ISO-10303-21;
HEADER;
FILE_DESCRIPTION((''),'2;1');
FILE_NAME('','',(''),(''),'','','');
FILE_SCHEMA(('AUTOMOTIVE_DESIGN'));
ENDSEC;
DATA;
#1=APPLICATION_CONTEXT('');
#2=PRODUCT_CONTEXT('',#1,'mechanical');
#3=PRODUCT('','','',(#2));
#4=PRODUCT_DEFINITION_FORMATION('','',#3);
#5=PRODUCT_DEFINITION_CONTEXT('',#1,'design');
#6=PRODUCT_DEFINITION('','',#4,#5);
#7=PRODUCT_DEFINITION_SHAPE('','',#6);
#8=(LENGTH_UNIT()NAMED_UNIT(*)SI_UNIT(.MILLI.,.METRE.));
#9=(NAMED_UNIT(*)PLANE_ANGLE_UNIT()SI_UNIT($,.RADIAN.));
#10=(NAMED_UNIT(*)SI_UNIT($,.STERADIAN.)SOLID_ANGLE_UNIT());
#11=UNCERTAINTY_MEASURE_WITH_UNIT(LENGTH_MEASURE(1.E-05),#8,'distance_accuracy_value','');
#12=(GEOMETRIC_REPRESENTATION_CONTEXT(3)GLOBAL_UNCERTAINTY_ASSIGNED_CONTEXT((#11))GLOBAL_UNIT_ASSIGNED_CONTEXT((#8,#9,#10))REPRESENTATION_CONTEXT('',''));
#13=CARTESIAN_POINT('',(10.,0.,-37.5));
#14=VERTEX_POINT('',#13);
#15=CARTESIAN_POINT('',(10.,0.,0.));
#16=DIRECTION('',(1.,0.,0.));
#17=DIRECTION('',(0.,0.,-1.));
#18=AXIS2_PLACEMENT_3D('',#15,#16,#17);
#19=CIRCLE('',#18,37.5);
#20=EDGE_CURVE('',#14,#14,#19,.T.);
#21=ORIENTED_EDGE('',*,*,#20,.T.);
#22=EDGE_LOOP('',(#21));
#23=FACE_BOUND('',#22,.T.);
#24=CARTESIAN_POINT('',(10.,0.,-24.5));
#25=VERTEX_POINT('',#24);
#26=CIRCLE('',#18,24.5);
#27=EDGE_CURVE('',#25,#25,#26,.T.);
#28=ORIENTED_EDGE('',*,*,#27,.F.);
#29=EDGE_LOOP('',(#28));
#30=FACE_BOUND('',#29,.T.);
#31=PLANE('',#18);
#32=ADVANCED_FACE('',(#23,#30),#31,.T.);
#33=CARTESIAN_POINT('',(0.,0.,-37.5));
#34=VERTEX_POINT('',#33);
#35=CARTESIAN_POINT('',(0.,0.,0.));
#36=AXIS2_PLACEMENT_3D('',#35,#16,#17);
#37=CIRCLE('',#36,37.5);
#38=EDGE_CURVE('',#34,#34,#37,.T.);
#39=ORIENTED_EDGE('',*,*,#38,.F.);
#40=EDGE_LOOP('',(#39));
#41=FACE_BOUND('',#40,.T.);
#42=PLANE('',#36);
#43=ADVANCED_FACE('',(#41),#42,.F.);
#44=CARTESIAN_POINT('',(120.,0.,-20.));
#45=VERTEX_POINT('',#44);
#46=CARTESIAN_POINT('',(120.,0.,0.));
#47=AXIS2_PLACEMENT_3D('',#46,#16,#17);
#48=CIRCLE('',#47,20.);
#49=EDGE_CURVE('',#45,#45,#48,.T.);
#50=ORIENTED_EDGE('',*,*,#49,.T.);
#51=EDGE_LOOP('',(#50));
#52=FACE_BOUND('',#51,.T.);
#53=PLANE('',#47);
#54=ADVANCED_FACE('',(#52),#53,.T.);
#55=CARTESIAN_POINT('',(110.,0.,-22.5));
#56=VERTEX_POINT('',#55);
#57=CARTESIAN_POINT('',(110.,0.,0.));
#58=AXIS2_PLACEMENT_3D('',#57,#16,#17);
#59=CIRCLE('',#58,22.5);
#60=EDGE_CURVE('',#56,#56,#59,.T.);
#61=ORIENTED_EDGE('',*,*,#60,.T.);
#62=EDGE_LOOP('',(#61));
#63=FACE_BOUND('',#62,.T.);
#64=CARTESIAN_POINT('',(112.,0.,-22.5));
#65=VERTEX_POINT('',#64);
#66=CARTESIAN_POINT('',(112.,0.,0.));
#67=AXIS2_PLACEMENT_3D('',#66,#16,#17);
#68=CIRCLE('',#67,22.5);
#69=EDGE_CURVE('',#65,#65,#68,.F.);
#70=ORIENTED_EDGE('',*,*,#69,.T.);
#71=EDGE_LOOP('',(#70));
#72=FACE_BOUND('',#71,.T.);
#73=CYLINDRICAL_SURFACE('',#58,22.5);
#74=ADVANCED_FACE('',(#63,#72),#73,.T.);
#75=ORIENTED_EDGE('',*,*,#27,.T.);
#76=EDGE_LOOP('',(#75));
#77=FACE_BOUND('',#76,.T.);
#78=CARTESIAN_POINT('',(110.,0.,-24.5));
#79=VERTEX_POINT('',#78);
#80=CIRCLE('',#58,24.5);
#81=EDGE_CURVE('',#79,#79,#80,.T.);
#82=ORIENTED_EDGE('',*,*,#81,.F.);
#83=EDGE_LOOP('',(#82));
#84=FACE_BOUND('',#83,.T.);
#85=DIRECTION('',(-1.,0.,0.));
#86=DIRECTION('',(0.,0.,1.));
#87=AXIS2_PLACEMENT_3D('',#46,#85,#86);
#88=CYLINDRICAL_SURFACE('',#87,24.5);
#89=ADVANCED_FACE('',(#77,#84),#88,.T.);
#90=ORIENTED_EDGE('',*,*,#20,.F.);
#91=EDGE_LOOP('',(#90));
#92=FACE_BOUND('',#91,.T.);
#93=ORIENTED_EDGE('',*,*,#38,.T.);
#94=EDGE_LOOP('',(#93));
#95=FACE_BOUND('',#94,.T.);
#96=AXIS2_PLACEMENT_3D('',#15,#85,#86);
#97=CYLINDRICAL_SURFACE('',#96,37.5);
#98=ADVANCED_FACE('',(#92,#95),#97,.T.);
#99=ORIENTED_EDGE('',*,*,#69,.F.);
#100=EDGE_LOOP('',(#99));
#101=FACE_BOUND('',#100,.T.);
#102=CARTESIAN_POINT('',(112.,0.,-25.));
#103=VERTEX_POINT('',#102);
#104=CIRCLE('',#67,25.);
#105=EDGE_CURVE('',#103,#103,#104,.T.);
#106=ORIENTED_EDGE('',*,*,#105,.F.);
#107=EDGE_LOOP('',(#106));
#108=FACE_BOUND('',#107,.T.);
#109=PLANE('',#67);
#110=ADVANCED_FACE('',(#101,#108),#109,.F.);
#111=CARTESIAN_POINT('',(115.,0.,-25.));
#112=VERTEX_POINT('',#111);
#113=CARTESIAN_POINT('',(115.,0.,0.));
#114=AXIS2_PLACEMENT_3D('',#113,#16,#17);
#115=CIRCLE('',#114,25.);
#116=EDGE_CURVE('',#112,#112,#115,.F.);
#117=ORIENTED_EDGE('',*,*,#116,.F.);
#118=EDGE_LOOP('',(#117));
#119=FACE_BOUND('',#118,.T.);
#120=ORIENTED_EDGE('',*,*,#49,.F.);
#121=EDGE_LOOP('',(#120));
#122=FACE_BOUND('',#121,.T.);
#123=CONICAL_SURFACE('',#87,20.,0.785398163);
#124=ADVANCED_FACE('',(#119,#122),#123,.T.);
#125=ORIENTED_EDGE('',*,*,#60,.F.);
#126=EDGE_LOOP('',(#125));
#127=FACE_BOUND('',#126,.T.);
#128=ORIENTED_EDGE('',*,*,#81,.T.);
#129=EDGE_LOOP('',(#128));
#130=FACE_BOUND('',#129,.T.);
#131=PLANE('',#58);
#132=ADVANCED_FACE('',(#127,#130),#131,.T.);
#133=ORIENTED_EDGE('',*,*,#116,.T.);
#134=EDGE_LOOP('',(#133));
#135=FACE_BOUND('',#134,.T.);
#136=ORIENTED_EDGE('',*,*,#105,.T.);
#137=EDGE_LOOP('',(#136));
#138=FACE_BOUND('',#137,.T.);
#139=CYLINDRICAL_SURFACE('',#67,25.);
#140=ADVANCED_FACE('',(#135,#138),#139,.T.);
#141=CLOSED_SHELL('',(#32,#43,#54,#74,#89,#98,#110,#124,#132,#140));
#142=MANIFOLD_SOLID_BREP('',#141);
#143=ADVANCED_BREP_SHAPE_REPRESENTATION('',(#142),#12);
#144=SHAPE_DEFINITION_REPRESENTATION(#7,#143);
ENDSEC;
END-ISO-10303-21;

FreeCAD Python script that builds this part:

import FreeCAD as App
import Part
import Sketcher


def edges_at(feature, points):
    """Names of the edges that pass closest to the given points."""
    edges = feature.Shape.Edges
    near = lambda p: min(range(len(edges)), key=lambda i: edges[i].distToShape(Part.Vertex(*p))[0])
    return sorted({f"Edge{near(p) + 1}" for p in points})

doc = App.newDocument("Part")
params = doc.addObject("Spreadsheet::Sheet", "Params")
for row, (alias, value) in enumerate([
    ("sketch1_diameter", "75 mm"),
    ("pad1_length", "10 mm"),
    ("sketch2_diameter", "49 mm"),
    ("pad2_length", "110 mm"),
    ("sketch3_diameter", "45 mm"),
    ("pocket1_length", "10 mm"),
    ("sketch4_diameter", "50 mm"),
    ("pad3_length", "8 mm"),
    ("chamfer_size", "5 mm"),
], start=1):
    params.set(f"A{row}", alias)
    params.set(f"B{row}", "=" + value)
    params.setAlias(f"B{row}", alias)

body = doc.addObject("PartDesign::Body", "Body")

sketch1 = body.newObject("Sketcher::SketchObject", "Sketch")
sketch1.AttachmentSupport = (doc.getObject("YZ_Plane"), [""])
sketch1.MapMode = "FlatFace"
sketch1.addGeometry(Part.Circle(App.Vector(0, 0, 0), App.Vector(0, 0, 1), 38), False)
sketch1.addConstraint(Sketcher.Constraint("Coincident", 0, 3, -1, 1))
sketch1.addConstraint(Sketcher.Constraint("Diameter", 0, 75.0))
sketch1.setExpression("Constraints[1]", "Params.sketch1_diameter")
pad1 = body.newObject("PartDesign::Pad", "Pad")
pad1.Profile = sketch1
pad1.setExpression("Length", "Params.pad1_length")

sketch2 = body.newObject("Sketcher::SketchObject", "Sketch001")
sketch2.AttachmentSupport = (doc.getObject("YZ_Plane"), [""])
sketch2.MapMode = "FlatFace"
sketch2.AttachmentOffset = App.Placement(App.Vector(0, 0, 10), App.Rotation())
sketch2.addGeometry(Part.Circle(App.Vector(0, 0, 0), App.Vector(0, 0, 1), 24), False)
sketch2.addConstraint(Sketcher.Constraint("Coincident", 0, 3, -1, 1))
sketch2.addConstraint(Sketcher.Constraint("Diameter", 0, 49.0))
sketch2.setExpression("Constraints[1]", "Params.sketch2_diameter")
pad2 = body.newObject("PartDesign::Pad", "Pad001")
pad2.Profile = sketch2
pad2.setExpression("Length", "Params.pad2_length")

sketch3 = body.newObject("Sketcher::SketchObject", "Sketch002")
sketch3.AttachmentSupport = (doc.getObject("YZ_Plane"), [""])
sketch3.MapMode = "FlatFace"
sketch3.AttachmentOffset = App.Placement(App.Vector(0, 0, 120), App.Rotation())
sketch3.addGeometry(Part.LineSegment(App.Vector(55, 55, 0), App.Vector(-55, 55, 0)), False)
sketch3.addGeometry(Part.LineSegment(App.Vector(-55, 55, 0), App.Vector(-55, -55, 0)), False)
sketch3.addGeometry(Part.LineSegment(App.Vector(-55, -55, 0), App.Vector(55, -55, 0)), False)
sketch3.addGeometry(Part.LineSegment(App.Vector(55, -55, 0), App.Vector(55, 55, 0)), False)
sketch3.addGeometry(Part.Circle(App.Vector(0, 0, 0), App.Vector(0, 0, 1), 22), False)
sketch3.addConstraint(Sketcher.Constraint("Coincident", 0, 2, 1, 1))
sketch3.addConstraint(Sketcher.Constraint("Coincident", 1, 2, 2, 1))
sketch3.addConstraint(Sketcher.Constraint("Coincident", 2, 2, 3, 1))
sketch3.addConstraint(Sketcher.Constraint("Coincident", 3, 2, 0, 1))
sketch3.addConstraint(Sketcher.Constraint("Horizontal", 0))
sketch3.addConstraint(Sketcher.Constraint("Vertical", 1))
sketch3.addConstraint(Sketcher.Constraint("Horizontal", 2))
sketch3.addConstraint(Sketcher.Constraint("Vertical", 3))
sketch3.addConstraint(Sketcher.Constraint("Coincident", 4, 3, -1, 1))
sketch3.addConstraint(Sketcher.Constraint("Symmetric", 0, 2, 2, 2, -1, 1))
sketch3.addConstraint(Sketcher.Constraint("Equal", 2, 1))
sketch3.addConstraint(Sketcher.Constraint("Diameter", 4, 45.0))
sketch3.addConstraint(Sketcher.Constraint("DistanceX", 0, 2, 0, 1, 109.032))
sketch3.setExpression("Constraints[11]", "Params.sketch3_diameter")
pocket1 = body.newObject("PartDesign::Pocket", "Pocket")
pocket1.Profile = sketch3
pocket1.setExpression("Length", "Params.pocket1_length")

sketch4 = body.newObject("Sketcher::SketchObject", "Sketch003")
sketch4.AttachmentSupport = (doc.getObject("YZ_Plane"), [""])
sketch4.MapMode = "FlatFace"
sketch4.AttachmentOffset = App.Placement(App.Vector(0, 0, 120), App.Rotation())
sketch4.addGeometry(Part.Circle(App.Vector(0, 0, 0), App.Vector(0, 0, 1), 25), False)
sketch4.addConstraint(Sketcher.Constraint("Coincident", 0, 3, -1, 1))
sketch4.addConstraint(Sketcher.Constraint("Diameter", 0, 50.0))
sketch4.setExpression("Constraints[1]", "Params.sketch4_diameter")
pad3 = body.newObject("PartDesign::Pad", "Pad002")
pad3.Profile = sketch4
pad3.setExpression("Length", "Params.pad3_length")
pad3.Reversed = True
doc.recompute()

chamfer = body.newObject("PartDesign::Chamfer", "Chamfer")
chamfer.Base = (pad3, edges_at(pad3, [(120, 0, 25)]))
chamfer.setExpression("Size", "Params.chamfer_size")

doc.recompute()
